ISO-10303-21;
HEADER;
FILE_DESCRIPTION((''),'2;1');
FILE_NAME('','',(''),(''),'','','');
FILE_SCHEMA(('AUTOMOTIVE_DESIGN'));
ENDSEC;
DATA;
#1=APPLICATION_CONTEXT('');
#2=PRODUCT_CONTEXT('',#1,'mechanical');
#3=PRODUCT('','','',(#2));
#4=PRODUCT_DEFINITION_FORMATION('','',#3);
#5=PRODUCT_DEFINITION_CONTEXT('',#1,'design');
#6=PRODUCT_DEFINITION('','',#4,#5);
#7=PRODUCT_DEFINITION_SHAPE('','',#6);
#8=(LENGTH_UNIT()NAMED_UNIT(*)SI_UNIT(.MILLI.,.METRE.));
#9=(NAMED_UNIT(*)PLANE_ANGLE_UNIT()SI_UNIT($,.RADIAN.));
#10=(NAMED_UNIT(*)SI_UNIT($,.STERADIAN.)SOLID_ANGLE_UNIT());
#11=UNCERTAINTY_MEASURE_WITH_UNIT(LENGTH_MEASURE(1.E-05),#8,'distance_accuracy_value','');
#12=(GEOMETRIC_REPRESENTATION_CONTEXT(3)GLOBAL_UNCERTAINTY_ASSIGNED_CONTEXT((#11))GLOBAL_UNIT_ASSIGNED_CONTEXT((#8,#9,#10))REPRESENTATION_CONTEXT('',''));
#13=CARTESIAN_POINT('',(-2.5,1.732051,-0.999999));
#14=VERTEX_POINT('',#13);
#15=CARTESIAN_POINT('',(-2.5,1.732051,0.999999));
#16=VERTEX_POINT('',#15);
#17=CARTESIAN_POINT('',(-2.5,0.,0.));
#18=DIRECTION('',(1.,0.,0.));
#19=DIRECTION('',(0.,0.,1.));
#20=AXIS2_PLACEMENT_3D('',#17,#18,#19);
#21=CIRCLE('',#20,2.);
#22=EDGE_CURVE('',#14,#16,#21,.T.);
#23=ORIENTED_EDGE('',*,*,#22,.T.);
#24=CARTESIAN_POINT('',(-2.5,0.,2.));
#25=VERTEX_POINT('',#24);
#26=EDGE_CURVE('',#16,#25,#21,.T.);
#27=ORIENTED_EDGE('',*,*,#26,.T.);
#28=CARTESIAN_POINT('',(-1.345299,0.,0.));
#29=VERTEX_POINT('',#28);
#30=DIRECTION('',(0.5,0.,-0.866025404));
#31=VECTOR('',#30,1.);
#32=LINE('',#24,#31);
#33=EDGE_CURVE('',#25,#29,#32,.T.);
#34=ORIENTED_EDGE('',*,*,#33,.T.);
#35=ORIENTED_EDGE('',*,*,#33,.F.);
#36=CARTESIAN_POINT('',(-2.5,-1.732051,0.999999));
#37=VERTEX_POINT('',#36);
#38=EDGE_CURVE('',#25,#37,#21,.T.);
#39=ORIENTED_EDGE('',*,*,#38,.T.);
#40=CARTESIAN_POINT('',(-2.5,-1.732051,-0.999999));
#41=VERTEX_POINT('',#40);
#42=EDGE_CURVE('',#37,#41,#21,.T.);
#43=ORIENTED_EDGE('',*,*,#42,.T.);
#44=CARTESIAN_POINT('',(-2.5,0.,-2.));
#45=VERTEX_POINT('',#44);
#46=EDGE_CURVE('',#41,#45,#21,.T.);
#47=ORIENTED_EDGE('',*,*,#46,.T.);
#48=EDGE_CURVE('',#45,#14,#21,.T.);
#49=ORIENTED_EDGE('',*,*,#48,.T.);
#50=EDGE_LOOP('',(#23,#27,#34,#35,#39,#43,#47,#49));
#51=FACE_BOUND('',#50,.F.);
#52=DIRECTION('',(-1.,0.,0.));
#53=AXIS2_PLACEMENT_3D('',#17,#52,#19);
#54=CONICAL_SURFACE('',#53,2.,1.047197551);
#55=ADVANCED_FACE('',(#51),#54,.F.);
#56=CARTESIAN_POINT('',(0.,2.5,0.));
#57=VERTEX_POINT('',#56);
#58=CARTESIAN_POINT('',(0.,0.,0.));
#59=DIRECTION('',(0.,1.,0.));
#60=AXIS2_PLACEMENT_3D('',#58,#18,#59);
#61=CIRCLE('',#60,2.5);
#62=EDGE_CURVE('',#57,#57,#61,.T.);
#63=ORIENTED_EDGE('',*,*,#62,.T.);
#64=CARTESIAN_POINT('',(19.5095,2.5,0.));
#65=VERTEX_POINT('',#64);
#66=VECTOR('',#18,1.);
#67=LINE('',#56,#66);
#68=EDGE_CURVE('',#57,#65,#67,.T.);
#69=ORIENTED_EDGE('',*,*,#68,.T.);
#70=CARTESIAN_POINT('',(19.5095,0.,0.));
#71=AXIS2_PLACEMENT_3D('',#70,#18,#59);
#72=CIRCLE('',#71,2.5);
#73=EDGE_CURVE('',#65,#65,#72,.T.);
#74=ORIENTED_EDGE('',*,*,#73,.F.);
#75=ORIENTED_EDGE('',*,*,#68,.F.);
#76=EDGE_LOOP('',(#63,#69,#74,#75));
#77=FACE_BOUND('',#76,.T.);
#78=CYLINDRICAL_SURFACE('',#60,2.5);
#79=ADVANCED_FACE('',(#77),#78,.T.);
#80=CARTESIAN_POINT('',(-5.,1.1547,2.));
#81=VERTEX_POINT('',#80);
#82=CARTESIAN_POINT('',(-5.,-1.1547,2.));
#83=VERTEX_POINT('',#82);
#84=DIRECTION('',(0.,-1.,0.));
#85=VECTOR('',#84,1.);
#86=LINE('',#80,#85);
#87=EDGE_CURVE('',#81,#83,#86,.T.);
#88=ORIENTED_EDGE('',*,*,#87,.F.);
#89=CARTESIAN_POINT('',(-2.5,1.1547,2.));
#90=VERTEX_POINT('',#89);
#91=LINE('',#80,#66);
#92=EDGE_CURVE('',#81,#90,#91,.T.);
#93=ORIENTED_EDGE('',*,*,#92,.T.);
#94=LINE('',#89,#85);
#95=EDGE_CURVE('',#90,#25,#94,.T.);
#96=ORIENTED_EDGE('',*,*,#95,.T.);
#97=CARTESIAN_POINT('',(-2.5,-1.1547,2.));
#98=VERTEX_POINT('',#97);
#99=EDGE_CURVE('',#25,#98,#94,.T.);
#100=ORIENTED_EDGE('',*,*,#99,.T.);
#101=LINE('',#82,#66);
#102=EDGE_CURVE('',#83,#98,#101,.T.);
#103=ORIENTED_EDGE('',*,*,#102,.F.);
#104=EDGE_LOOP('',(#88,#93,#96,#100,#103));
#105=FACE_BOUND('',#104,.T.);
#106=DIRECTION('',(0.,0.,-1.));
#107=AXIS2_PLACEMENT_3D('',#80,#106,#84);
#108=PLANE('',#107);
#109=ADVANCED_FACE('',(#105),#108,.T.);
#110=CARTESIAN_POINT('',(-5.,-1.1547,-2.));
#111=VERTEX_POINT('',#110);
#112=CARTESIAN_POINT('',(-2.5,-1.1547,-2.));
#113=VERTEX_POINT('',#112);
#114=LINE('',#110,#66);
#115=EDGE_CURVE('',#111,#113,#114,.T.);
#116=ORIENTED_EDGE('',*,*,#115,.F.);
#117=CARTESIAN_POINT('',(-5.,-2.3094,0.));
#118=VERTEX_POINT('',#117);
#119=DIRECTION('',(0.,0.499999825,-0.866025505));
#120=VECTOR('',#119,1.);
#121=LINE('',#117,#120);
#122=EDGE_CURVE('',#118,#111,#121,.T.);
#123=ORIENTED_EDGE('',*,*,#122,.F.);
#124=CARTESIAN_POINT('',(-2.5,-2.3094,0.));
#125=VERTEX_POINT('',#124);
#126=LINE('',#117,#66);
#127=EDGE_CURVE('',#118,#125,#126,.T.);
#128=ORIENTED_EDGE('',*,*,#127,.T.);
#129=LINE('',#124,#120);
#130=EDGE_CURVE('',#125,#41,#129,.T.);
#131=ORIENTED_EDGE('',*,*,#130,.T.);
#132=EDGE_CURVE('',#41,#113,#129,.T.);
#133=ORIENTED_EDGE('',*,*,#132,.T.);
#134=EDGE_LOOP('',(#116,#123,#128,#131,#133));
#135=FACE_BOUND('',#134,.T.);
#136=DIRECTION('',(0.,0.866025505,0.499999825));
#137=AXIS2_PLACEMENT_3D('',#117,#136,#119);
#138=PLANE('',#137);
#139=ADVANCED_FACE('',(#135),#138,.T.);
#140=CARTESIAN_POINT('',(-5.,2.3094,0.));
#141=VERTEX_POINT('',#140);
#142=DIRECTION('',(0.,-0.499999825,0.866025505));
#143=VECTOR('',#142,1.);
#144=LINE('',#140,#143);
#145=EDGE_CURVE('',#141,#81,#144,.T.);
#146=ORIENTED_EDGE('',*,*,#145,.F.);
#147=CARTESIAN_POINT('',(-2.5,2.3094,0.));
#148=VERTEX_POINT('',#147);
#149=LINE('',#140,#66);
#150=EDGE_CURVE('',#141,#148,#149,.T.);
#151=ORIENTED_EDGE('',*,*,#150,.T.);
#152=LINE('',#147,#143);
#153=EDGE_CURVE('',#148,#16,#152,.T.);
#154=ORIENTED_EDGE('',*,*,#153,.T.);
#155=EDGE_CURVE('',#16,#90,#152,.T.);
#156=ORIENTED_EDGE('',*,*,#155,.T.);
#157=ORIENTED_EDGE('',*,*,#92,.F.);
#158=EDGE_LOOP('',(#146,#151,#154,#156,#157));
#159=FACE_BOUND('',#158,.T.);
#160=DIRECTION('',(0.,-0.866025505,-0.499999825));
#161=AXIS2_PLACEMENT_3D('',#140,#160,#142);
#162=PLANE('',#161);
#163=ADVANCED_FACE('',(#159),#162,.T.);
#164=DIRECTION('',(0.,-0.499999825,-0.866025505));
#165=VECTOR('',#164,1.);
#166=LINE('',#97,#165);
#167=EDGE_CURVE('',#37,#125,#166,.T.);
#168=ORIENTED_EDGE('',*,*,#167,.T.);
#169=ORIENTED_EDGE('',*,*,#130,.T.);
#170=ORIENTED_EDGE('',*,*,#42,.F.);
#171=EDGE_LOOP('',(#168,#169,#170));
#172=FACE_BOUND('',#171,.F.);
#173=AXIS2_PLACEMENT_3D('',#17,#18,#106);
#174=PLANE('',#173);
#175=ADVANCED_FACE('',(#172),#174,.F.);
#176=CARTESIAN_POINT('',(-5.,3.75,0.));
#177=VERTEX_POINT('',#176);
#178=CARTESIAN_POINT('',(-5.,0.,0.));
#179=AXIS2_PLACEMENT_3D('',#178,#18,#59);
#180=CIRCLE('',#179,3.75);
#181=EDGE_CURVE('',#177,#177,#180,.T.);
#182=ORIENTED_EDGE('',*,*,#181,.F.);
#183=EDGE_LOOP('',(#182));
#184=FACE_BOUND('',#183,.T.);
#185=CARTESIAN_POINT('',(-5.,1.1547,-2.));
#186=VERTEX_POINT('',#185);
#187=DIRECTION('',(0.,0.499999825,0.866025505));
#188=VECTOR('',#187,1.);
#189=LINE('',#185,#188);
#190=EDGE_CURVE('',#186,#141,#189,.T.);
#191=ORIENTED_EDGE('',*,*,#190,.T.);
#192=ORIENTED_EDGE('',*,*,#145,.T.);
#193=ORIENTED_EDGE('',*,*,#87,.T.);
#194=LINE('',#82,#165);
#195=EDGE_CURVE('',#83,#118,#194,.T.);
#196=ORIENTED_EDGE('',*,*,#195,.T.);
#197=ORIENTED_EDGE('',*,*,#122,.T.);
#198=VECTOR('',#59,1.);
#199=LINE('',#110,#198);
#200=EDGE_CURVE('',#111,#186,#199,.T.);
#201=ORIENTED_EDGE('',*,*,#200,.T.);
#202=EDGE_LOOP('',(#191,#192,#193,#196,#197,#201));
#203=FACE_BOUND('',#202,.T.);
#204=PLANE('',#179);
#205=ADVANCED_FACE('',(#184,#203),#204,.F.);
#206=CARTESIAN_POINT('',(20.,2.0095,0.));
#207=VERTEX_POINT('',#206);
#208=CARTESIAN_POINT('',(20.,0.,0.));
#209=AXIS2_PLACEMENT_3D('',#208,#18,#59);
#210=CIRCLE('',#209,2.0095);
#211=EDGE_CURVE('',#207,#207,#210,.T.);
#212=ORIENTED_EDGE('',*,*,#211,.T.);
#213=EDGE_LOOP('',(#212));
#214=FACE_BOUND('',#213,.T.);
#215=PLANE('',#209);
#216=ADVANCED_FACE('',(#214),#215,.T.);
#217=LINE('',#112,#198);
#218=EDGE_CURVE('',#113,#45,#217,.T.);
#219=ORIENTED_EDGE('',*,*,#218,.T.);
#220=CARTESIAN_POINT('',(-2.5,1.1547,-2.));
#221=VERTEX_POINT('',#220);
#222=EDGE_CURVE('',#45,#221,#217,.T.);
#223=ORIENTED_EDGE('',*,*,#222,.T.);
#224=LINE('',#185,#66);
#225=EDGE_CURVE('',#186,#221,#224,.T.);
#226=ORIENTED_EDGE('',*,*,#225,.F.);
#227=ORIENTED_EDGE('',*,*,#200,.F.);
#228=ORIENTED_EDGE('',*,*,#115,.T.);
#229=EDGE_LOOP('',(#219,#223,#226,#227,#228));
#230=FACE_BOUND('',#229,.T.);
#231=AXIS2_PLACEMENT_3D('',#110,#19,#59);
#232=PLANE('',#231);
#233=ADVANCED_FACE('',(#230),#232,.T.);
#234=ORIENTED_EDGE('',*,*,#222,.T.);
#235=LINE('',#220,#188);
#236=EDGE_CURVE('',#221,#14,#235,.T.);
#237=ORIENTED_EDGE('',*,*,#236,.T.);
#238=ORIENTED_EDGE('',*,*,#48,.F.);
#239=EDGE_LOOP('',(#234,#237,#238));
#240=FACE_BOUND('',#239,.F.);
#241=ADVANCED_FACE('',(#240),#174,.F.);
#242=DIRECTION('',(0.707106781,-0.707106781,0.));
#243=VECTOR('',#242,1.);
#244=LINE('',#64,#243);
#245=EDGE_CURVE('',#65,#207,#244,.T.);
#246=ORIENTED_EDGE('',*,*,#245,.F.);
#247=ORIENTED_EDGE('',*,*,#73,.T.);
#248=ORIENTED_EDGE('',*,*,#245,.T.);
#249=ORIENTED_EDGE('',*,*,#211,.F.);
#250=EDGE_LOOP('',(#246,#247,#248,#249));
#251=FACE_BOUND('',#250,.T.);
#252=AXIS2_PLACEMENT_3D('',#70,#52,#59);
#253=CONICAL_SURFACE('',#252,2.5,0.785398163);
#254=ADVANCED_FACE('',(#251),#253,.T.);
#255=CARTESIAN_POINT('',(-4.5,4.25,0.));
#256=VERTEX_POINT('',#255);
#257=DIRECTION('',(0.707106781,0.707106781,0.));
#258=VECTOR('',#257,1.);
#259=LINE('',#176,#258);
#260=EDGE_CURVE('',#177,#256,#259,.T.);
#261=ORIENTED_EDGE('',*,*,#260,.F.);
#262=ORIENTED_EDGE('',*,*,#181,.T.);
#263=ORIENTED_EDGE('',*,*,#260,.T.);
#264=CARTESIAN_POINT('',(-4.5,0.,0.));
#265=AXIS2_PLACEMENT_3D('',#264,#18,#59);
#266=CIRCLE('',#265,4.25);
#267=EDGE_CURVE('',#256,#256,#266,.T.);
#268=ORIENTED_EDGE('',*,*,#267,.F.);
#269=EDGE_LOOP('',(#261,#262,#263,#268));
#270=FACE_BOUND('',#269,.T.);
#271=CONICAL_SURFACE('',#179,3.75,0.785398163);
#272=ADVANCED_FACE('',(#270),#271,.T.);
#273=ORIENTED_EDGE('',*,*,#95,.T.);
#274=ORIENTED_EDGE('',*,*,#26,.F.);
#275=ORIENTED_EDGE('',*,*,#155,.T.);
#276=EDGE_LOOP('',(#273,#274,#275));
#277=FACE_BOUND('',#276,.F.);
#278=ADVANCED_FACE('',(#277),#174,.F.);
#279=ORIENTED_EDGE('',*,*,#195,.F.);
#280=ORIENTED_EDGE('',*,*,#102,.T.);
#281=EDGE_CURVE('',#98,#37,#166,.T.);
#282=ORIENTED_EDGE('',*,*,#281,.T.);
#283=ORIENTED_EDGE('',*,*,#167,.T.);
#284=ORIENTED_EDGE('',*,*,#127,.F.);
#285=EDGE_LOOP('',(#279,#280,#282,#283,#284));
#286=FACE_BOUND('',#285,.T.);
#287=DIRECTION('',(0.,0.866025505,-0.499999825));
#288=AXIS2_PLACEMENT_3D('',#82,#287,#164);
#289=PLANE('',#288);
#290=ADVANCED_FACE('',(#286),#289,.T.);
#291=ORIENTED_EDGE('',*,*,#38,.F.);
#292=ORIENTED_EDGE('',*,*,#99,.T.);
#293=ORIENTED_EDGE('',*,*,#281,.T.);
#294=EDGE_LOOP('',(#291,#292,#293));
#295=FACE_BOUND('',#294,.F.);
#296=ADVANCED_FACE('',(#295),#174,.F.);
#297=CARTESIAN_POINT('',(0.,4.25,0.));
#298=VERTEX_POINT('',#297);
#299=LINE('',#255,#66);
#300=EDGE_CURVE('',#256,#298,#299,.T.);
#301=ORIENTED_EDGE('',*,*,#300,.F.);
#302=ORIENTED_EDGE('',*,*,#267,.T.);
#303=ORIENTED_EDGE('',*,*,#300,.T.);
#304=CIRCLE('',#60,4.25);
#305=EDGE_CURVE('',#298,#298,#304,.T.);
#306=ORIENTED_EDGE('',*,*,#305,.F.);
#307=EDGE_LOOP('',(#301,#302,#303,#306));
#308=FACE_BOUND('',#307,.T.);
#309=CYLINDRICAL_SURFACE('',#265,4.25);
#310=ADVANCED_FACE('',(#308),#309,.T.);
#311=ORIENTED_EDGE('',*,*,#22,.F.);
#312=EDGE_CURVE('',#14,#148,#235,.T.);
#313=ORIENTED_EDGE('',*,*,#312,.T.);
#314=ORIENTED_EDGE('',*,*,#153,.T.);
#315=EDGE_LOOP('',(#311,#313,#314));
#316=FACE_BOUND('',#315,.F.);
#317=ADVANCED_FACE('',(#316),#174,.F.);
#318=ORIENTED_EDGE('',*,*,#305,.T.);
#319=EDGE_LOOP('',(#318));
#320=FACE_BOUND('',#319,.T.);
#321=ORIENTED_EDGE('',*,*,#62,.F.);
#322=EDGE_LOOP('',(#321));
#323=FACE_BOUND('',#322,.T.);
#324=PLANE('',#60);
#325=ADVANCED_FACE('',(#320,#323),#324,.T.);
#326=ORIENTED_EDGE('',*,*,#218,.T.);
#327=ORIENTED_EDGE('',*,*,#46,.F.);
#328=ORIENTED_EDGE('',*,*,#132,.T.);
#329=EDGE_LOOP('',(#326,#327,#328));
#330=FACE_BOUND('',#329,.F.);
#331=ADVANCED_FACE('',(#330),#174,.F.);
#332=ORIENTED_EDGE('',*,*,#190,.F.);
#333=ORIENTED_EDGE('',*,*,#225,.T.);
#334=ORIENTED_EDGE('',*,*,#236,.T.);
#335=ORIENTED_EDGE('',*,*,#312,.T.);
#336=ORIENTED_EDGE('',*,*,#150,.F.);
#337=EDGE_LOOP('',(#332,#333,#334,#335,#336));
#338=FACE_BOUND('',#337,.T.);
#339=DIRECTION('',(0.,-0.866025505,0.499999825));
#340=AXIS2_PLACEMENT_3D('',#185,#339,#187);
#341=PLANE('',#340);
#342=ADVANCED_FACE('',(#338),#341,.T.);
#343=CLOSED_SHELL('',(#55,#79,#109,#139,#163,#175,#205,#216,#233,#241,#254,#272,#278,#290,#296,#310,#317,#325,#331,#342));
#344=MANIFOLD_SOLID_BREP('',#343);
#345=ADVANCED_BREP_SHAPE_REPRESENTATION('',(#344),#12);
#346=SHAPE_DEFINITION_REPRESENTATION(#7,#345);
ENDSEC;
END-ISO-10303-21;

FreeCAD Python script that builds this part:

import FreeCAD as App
import Part
import Sketcher
from FreeCAD import Vector
Q = App.Units.Quantity

doc = App.newDocument("Part")
body = doc.addObject("PartDesign::Body", "Body")

# Sketch on XY plane
sketch1 = doc.addObject("Sketcher::SketchObject", "Sketch")
body.addObject(sketch1)
sketch1.AttachmentSupport = (doc.XY_Plane, [""])
sketch1.MapMode = "FlatFace"
sketch1.addGeometry([
    Part.LineSegment(Vector(-5, 0, 0), Vector(20, 0, 0)),  # 0
    Part.LineSegment(Vector(20, 0, 0), Vector(20, 2, 0)),  # 1
    Part.LineSegment(Vector(20, 2, 0), Vector(19.5, 2.5, 0)),  # 2
    Part.LineSegment(Vector(19.5, 2.5, 0), Vector(0, 2.5, 0)),  # 3
    Part.LineSegment(Vector(0, 2.5, 0), Vector(0, 4.2, 0)),  # 4
    Part.LineSegment(Vector(0, 4.2, 0), Vector(-4.5, 4.2, 0)),  # 5
    Part.LineSegment(Vector(-4.5, 4.2, 0), Vector(-5, 3.8, 0)),  # 6
    Part.LineSegment(Vector(-5, 3.8, 0), Vector(-5, 0, 0)),  # 7
], False)
sketch1.addConstraint([
    Sketcher.Constraint("Coincident", 0, 2, 1, 1),
    Sketcher.Constraint("Coincident", 1, 2, 2, 1),
    Sketcher.Constraint("Coincident", 2, 2, 3, 1),
    Sketcher.Constraint("Coincident", 3, 2, 4, 1),
    Sketcher.Constraint("Coincident", 4, 2, 5, 1),
    Sketcher.Constraint("Coincident", 5, 2, 6, 1),
    Sketcher.Constraint("Coincident", 6, 2, 7, 1),
    Sketcher.Constraint("Coincident", 7, 2, 0, 1),
    Sketcher.Constraint("Horizontal", 0),
    Sketcher.Constraint("Vertical", 1),
    Sketcher.Constraint("Horizontal", 3),
    Sketcher.Constraint("Vertical", 4),
    Sketcher.Constraint("Horizontal", 5),
    Sketcher.Constraint("Vertical", 7),
    Sketcher.Constraint("PointOnObject", 0, 2, -1),
    Sketcher.Constraint("PointOnObject", 3, 2, -2),
    Sketcher.Constraint("Perpendicular", 2, 6),
    Sketcher.Constraint("DistanceX", 0, 1, 0, 2, Q("25 mm")),
    Sketcher.Constraint("Angle", 2, Q("135 deg")),
    Sketcher.Constraint("DistanceX", 5, 2, 5, 1, Q("4.5 mm")),
    Sketcher.Constraint("DistanceX", -1, 1, 0, 2, Q("20 mm")),
    Sketcher.Constraint("DistanceY", 4, 1, 4, 2, Q("1.75 mm")),
    Sketcher.Constraint("DistanceY", 7, 2, 7, 1, Q("3.75 mm")),
    Sketcher.Constraint("DistanceX", 3, 2, 3, 1, Q("19.5095 mm")),
])
revolution = doc.addObject("PartDesign::Revolution", "Revolution")
body.addObject(revolution)
revolution.Profile = sketch1
revolution.ReferenceAxis = (sketch1, ["H_Axis"])
revolution.Angle = 360

# Sketch on YZ plane
sketch2 = doc.addObject("Sketcher::SketchObject", "Sketch001")
body.addObject(sketch2)
sketch2.AttachmentSupport = (doc.YZ_Plane, [""])
sketch2.MapMode = "FlatFace"
sketch2.AttachmentOffset = App.Placement(Vector(0, 0, -5), App.Rotation())
sketch2.addGeometry(Part.Circle(Vector(0, 0, 0), Vector(0, 0, 1), 2), False)
sketch2.addConstraint([
    Sketcher.Constraint("Coincident", 0, 3, -1, 1),
    Sketcher.Constraint("Diameter", 0, Q("4 mm")),
])
doc.recompute()
hole = doc.addObject("PartDesign::Hole", "Hole")
body.addObject(hole)
hole.Profile = sketch2
hole.ThreadType = "None"
hole.Diameter = 4
hole.DepthType = "Dimension"
hole.Depth = 2.5
hole.DrillPoint = "Angled"
hole.DrillPointAngle = 120
hole.Reversed = True

# Sketch on YZ plane
sketch3 = doc.addObject("Sketcher::SketchObject", "Sketch002")
body.addObject(sketch3)
sketch3.AttachmentSupport = (doc.YZ_Plane, [""])
sketch3.MapMode = "FlatFace"
sketch3.AttachmentOffset = App.Placement(Vector(0, 0, -5), App.Rotation())
sketch3.addGeometry([
    Part.LineSegment(Vector(1.2, 2, 0), Vector(-1.2, 2, 0)),  # 0
    Part.LineSegment(Vector(-1.2, 2, 0), Vector(-2.3, 0, 0)),  # 1
    Part.LineSegment(Vector(-2.3, 0, 0), Vector(-1.2, -2, 0)),  # 2
    Part.LineSegment(Vector(-1.2, -2, 0), Vector(1.2, -2, 0)),  # 3
    Part.LineSegment(Vector(1.2, -2, 0), Vector(2.3, 0, 0)),  # 4
    Part.LineSegment(Vector(2.3, 0, 0), Vector(1.2, 2, 0)),  # 5
], False)
sketch3.addConstraint([
    Sketcher.Constraint("Coincident", 0, 2, 1, 1),
    Sketcher.Constraint("Coincident", 1, 2, 2, 1),
    Sketcher.Constraint("Coincident", 2, 2, 3, 1),
    Sketcher.Constraint("Coincident", 3, 2, 4, 1),
    Sketcher.Constraint("Coincident", 4, 2, 5, 1),
    Sketcher.Constraint("Coincident", 5, 2, 0, 1),
    Sketcher.Constraint("Horizontal", 0),
    Sketcher.Constraint("Horizontal", 3),
    Sketcher.Constraint("Symmetric", 0, 2, 3, 2, -1, 1),
    Sketcher.Constraint("Symmetric", 1, 2, 4, 2, -1, 1),
    Sketcher.Constraint("PointOnObject", 1, 2, -1),
    Sketcher.Constraint("Parallel", 2, 5),
    Sketcher.Constraint("Vertical", 0, 2, 2, 2),
    Sketcher.Constraint("Angle", 1, Q("-120 deg")),
    Sketcher.Constraint("DistanceY", -1, 1, 0, 2, Q("2 mm")),
    Sketcher.Constraint("DistanceX", 0, 2, 0, 1, Q("2.3094 mm")),
])
pocket1 = doc.addObject("PartDesign::Pocket", "Pocket")
body.addObject(pocket1)
pocket1.Profile = sketch3
pocket1.Length = 2.5
pocket1.Reversed = True

doc.recompute()
